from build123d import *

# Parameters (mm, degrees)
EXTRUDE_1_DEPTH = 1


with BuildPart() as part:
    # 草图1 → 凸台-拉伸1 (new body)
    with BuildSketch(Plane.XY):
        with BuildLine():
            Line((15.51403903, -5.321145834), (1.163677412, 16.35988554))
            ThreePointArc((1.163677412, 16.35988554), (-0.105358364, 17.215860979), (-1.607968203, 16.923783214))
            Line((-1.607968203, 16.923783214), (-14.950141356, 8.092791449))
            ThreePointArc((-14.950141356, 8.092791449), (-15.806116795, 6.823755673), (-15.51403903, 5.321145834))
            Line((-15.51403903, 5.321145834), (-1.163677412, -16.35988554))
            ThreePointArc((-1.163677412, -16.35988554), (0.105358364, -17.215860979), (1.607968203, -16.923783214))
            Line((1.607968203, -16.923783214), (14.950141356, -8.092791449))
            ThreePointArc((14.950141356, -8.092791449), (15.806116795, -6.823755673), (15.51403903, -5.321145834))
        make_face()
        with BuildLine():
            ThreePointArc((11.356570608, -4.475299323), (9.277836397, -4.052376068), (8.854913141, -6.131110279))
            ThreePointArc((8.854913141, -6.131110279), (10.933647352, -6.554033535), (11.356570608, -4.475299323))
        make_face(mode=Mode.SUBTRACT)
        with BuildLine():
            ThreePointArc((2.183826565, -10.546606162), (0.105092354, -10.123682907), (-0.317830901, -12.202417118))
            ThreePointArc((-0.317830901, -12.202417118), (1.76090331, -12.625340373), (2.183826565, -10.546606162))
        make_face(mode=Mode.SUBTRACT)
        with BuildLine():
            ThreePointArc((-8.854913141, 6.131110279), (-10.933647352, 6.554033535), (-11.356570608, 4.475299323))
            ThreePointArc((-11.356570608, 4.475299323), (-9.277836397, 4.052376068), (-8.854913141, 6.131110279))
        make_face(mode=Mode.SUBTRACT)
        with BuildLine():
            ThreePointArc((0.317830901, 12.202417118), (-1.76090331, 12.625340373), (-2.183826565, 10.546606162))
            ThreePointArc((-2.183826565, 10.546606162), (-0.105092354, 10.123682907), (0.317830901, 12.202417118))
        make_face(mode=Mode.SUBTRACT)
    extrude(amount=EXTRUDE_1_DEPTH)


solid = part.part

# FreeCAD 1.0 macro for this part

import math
import FreeCAD as App
import Part
import Sketcher
Q = App.Units.Quantity

doc = App.newDocument("Part")
params = doc.addObject("Spreadsheet::Sheet", "Params")
for row, (alias, value) in enumerate([
    ("sketch1_diameter", "3 mm"),
    ("sketch1_radius", "2 mm"),
    ("sketch1_length", "26 mm"),
    ("sketch1_length2", "16 mm"),
    ("pad1_length", "1 mm"),
], start=1):
    params.set(f"A{row}", alias)
    params.set(f"B{row}", "=" + value)
    params.setAlias(f"B{row}", alias)

body = doc.addObject("PartDesign::Body", "Body")

sketch1 = body.newObject("Sketcher::SketchObject", "Sketch")
sketch1.AttachmentSupport = (doc.getObject("XY_Plane"), [""])
sketch1.MapMode = "FlatFace"
sketch1.addGeometry(Part.LineSegment(App.Vector(15.5, -5.3, 0), App.Vector(1.2, 16.4, 0)), False)
sketch1.addGeometry(Part.ArcOfCircle(Part.Circle(App.Vector(-0.5, 15.3, 0), App.Vector(0, 0, 1), 2), math.radians(33), math.radians(123)), False)
sketch1.addGeometry(Part.LineSegment(App.Vector(-1.6, 16.9, 0), App.Vector(-15, 8.1, 0)), False)
sketch1.addGeometry(Part.ArcOfCircle(Part.Circle(App.Vector(-13.8, 6.4, 0), App.Vector(0, 0, 1), 2), math.radians(123), math.radians(213)), False)
sketch1.addGeometry(Part.LineSegment(App.Vector(-15.5, 5.3, 0), App.Vector(-1.2, -16.4, 0)), False)
sketch1.addGeometry(Part.ArcOfCircle(Part.Circle(App.Vector(0.5, -15.3, 0), App.Vector(0, 0, 1), 2), math.radians(-147), math.radians(-57)), False)
sketch1.addGeometry(Part.LineSegment(App.Vector(1.6, -16.9, 0), App.Vector(15, -8.1, 0)), False)
sketch1.addGeometry(Part.ArcOfCircle(Part.Circle(App.Vector(13.8, -6.4, 0), App.Vector(0, 0, 1), 2), math.radians(-57), math.radians(33)), False)
sketch1.addGeometry(Part.Circle(App.Vector(0.9, -11.4, 0), App.Vector(0, 0, 1), 1.5), False)
sketch1.addGeometry(Part.ArcOfCircle(Part.Circle(App.Vector(10.1, -5.3, 0), App.Vector(0, 0, 1), 1.5), math.radians(34), math.radians(213)), False)
sketch1.addGeometry(Part.ArcOfCircle(Part.Circle(App.Vector(10.1, -5.3, 0), App.Vector(0, 0, 1), 1.5), math.radians(-147), math.radians(34)), False)
sketch1.addGeometry(Part.ArcOfCircle(Part.Circle(App.Vector(-10.1, 5.3, 0), App.Vector(0, 0, 1), 1.5), math.radians(33), math.radians(214)), False)
sketch1.addGeometry(Part.ArcOfCircle(Part.Circle(App.Vector(-10.1, 5.3, 0), App.Vector(0, 0, 1), 1.5), math.radians(-146), math.radians(33)), False)
sketch1.addGeometry(Part.Circle(App.Vector(-0.9, 11.4, 0), App.Vector(0, 0, 1), 1.5), False)
sketch1.addConstraint(Sketcher.Constraint("Tangent", 0, 2, 1, 1))
sketch1.addConstraint(Sketcher.Constraint("Tangent", 1, 2, 2, 1))
sketch1.addConstraint(Sketcher.Constraint("Tangent", 2, 2, 3, 1))
sketch1.addConstraint(Sketcher.Constraint("Tangent", 3, 2, 4, 1))
sketch1.addConstraint(Sketcher.Constraint("Tangent", 4, 2, 5, 1))
sketch1.addConstraint(Sketcher.Constraint("Tangent", 5, 2, 6, 1))
sketch1.addConstraint(Sketcher.Constraint("Tangent", 6, 2, 7, 1))
sketch1.addConstraint(Sketcher.Constraint("Tangent", 7, 2, 0, 1))
sketch1.addConstraint(Sketcher.Constraint("Tangent", 9, 1, 10, 2))
sketch1.addConstraint(Sketcher.Constraint("Coincident", 10, 1, 9, 2))
sketch1.addConstraint(Sketcher.Constraint("Tangent", 11, 1, 12, 2))
sketch1.addConstraint(Sketcher.Constraint("Coincident", 12, 1, 11, 2))
sketch1.addConstraint(Sketcher.Constraint("Equal", 1, 3))
sketch1.addConstraint(Sketcher.Constraint("Equal", 3, 5))
sketch1.addConstraint(Sketcher.Constraint("Equal", 5, 7))
sketch1.addConstraint(Sketcher.Constraint("Equal", 8, 9))
sketch1.addConstraint(Sketcher.Constraint("Equal", 10, 11))
sketch1.addConstraint(Sketcher.Constraint("Equal", 12, 13))
sketch1.addConstraint(Sketcher.Constraint("Symmetric", 1, 3, 5, 3, -1, 1))
sketch1.addConstraint(Sketcher.Constraint("Symmetric", 3, 3, 7, 3, -1, 1))
sketch1.addConstraint(Sketcher.Constraint("Symmetric", 9, 3, 11, 3, -1, 1))
sketch1.addConstraint(Sketcher.Constraint("Symmetric", 8, 3, 13, 3, -1, 1))
sketch1.addConstraint(Sketcher.Constraint("Perpendicular", 0, 2))
sketch1.addConstraint(Sketcher.Constraint("Diameter", 8, 3.0))
sketch1.addConstraint(Sketcher.Constraint("Radius", 1, 2.0))
sketch1.addConstraint(Sketcher.Constraint("Distance", 0, 26.0))
sketch1.addConstraint(Sketcher.Constraint("Distance", 2, 16.0))
sketch1.addConstraint(Sketcher.Constraint("Angle", 0, Q("123.5 deg")))
sketch1.addConstraint(Sketcher.Constraint("DistanceY", 9, 1, -1, 1, 4.475299))
sketch1.addConstraint(Sketcher.Constraint("DistanceY", -1, 1, 12, 1, 4.475299))
sketch1.addConstraint(Sketcher.Constraint("DistanceY", 5, 3, 8, 3, 3.8815))
sketch1.addConstraint(Sketcher.Constraint("DistanceX", 2, 2, 12, 3, 4.844399))
sketch1.addConstraint(Sketcher.Constraint("DistanceX", -1, 1, 9, 1, 11.356571))
sketch1.addConstraint(Sketcher.Constraint("DistanceY", 10, 1, -1, 1, 6.13111))
sketch1.addConstraint(Sketcher.Constraint("DistanceY", -1, 1, 11, 1, 6.13111))
sketch1.addConstraint(Sketcher.Constraint("DistanceX", 8, 3, 7, 3, 12.91327))
sketch1.setExpression("Constraints[23]", "Params.sketch1_diameter")
sketch1.setExpression("Constraints[24]", "Params.sketch1_radius")
sketch1.setExpression("Constraints[25]", "Params.sketch1_length")
sketch1.setExpression("Constraints[26]", "Params.sketch1_length2")
pad1 = body.newObject("PartDesign::Pad", "Pad")
pad1.Profile = sketch1
pad1.setExpression("Length", "Params.pad1_length")

doc.recompute()
